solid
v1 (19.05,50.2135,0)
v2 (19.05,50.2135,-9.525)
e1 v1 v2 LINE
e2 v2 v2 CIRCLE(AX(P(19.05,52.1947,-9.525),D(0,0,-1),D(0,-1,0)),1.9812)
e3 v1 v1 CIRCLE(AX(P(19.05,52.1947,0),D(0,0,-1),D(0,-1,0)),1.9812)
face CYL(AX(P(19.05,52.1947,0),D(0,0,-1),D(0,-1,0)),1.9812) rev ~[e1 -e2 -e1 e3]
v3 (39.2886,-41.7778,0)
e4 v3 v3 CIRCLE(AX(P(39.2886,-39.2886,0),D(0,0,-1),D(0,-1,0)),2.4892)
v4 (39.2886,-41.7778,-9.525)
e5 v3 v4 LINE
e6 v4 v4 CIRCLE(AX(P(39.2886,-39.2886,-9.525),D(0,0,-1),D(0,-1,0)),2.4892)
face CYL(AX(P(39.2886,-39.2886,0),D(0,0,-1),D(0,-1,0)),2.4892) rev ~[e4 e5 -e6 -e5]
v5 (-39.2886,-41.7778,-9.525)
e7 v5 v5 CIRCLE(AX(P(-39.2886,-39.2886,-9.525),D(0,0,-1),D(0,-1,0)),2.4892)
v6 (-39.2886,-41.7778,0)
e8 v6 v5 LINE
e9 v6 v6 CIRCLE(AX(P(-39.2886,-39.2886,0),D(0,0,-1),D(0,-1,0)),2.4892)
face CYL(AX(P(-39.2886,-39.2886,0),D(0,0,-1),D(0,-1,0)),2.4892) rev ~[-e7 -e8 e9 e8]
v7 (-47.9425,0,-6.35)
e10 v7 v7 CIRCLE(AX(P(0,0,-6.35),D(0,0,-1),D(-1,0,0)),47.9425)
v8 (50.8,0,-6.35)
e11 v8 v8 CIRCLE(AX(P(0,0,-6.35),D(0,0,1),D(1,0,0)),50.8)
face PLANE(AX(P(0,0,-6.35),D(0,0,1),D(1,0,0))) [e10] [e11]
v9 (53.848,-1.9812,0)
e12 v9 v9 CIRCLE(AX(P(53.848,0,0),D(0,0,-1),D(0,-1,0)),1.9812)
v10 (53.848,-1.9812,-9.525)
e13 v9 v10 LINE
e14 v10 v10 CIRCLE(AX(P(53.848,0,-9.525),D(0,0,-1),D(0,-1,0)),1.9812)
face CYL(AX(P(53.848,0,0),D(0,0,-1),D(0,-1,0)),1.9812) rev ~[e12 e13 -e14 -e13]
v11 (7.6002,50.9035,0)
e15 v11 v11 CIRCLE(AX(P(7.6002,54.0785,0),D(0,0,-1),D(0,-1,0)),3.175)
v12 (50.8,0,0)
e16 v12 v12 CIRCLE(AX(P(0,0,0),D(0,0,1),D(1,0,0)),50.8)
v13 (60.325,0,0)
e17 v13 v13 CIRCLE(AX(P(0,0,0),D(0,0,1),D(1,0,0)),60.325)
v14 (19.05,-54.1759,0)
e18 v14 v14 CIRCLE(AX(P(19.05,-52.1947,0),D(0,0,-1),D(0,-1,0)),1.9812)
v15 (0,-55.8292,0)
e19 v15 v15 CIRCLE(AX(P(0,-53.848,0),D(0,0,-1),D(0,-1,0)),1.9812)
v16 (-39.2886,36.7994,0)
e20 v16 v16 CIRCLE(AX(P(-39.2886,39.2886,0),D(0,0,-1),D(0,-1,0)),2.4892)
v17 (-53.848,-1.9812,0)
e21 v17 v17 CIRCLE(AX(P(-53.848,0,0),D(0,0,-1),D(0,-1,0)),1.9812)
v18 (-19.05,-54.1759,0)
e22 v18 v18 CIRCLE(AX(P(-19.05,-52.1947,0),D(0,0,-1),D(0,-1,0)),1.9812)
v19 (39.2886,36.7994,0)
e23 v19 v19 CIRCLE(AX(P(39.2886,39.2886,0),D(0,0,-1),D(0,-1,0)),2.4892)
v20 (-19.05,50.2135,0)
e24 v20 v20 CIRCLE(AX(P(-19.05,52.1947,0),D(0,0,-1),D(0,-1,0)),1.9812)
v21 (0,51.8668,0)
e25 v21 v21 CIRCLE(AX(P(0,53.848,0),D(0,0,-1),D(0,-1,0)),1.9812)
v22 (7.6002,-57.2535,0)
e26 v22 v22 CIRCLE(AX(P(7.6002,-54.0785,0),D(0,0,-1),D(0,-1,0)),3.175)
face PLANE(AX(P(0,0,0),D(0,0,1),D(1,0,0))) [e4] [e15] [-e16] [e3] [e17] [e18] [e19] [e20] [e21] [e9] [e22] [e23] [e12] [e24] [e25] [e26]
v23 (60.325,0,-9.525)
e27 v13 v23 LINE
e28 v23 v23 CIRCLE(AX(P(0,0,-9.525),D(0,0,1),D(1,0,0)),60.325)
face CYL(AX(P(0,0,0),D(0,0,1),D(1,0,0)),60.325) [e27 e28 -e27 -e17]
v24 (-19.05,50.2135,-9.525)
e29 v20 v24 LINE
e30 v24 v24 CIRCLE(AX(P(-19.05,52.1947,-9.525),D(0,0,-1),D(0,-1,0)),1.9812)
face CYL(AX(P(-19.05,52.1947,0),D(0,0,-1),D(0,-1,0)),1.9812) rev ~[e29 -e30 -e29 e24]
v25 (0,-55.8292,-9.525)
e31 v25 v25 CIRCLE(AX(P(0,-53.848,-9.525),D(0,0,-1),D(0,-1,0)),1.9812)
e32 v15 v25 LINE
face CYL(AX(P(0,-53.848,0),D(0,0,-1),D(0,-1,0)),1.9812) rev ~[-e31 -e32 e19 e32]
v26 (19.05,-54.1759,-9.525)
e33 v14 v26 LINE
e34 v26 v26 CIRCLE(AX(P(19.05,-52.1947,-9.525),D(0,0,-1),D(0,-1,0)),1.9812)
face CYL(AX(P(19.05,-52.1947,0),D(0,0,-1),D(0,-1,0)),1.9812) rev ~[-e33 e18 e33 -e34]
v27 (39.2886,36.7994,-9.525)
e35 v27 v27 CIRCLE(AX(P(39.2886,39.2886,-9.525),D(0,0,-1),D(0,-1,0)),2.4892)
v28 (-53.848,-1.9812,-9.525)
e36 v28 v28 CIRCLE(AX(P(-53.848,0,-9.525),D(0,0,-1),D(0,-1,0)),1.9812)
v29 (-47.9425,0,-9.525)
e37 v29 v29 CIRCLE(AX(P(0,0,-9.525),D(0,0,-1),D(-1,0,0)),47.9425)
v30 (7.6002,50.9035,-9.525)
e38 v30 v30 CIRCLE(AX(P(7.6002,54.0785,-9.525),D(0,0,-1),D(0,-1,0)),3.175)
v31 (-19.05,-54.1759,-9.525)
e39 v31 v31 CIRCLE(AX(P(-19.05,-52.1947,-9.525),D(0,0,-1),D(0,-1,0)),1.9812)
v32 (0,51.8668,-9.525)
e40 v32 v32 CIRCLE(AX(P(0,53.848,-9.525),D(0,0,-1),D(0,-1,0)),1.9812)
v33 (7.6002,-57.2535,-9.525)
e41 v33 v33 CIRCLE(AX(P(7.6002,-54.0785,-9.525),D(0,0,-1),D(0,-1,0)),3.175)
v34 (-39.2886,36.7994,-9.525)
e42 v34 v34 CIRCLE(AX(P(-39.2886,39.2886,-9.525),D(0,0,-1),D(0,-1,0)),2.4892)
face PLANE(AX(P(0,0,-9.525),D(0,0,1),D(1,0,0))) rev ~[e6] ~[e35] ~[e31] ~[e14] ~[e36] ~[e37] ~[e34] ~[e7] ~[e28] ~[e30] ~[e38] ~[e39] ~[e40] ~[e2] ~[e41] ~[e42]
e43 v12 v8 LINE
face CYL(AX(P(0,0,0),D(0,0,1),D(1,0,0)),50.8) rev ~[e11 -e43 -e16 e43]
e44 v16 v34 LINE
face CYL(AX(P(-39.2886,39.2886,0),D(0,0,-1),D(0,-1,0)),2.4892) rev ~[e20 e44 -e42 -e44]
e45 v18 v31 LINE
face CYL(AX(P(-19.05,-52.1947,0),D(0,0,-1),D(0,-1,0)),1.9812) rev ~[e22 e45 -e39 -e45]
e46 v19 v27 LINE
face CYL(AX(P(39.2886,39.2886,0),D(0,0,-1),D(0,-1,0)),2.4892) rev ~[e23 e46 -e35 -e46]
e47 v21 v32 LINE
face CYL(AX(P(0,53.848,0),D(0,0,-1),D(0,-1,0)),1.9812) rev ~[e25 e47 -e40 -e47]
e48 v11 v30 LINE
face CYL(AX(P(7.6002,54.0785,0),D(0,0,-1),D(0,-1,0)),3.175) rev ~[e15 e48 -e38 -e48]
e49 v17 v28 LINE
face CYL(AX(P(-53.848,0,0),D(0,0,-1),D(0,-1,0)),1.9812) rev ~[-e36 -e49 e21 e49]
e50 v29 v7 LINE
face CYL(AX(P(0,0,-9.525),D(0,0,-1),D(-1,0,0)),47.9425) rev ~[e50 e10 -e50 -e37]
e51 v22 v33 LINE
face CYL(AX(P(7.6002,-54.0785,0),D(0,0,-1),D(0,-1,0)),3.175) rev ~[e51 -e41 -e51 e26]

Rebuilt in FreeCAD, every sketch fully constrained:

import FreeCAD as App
import Part
import Sketcher
from FreeCAD import Vector
Q = App.Units.Quantity

doc = App.newDocument("Part")
params = doc.addObject("Spreadsheet::Sheet", "Params")
for row, (alias, value) in enumerate([
    ("sketch1_diameter", "4.75 in"),
    ("sketch1_diameter2", "3.75 in"),
    ("pad1_length", "0.375 in"),
    ("sketch2_diameter", "4 in"),
    ("pocket1_length", "0.25 in"),
    ("sketch3_diameter", "0.156 in"),
    ("hole_diameter", "0.156 in"),
    ("sketch4_diameter", "3.775 in"),
    ("sketch4_diameter2", "3.75 in"),
    ("pocket2_length", "0.25 in"),
    ("sketch5_diameter", "0.156 in"),
    ("hole2_diameter", "0.156 in"),
    ("sketch6_diameter", "0.196 in"),
    ("hole3_diameter", "0.196 in"),
    ("sketch7_diameter", "0.25 in"),
    ("hole4_diameter", "0.25 in"),
], start=1):
    params.set(f"A{row}", alias)
    params.set(f"B{row}", "=" + value)
    params.setAlias(f"B{row}", alias)

body = doc.addObject("PartDesign::Body", "Body")

# Sketch on XY plane
sketch1 = body.newObject("Sketcher::SketchObject", "Sketch")
sketch1.AttachmentSupport = (doc.getObject("XY_Plane"), [""])
sketch1.MapMode = "FlatFace"
sketch1.addGeometry([
    Part.Circle(Vector(0, 0, 0), Vector(0, 0, 1), 60),
    Part.Circle(Vector(0, 0, 0), Vector(0, 0, 1), 48),
], False)
sketch1.addConstraint([
    Sketcher.Constraint("Coincident", 0, 3, -1, 1),
    Sketcher.Constraint("Coincident", 1, 3, -1, 1),
    Sketcher.Constraint("Diameter", 0, Q("4.75 in")),
    Sketcher.Constraint("Diameter", 1, Q("3.75 in")),
])
sketch1.setExpression("Constraints[2]", "Params.sketch1_diameter")
sketch1.setExpression("Constraints[3]", "Params.sketch1_diameter2")
pad1 = body.newObject("PartDesign::Pad", "Pad")
pad1.Profile = sketch1
pad1.setExpression("Length", "Params.pad1_length")
pad1.Reversed = True

# Sketch on XY plane
sketch2 = body.newObject("Sketcher::SketchObject", "Sketch001")
sketch2.AttachmentSupport = (doc.getObject("XY_Plane"), [""])
sketch2.MapMode = "FlatFace"
sketch2.addGeometry(Part.Circle(Vector(0, 0, 0), Vector(0, 0, 1), 51), False)
sketch2.addConstraint([
    Sketcher.Constraint("Coincident", 0, 3, -1, 1),
    Sketcher.Constraint("Diameter", 0, Q("4 in")),
])
sketch2.setExpression("Constraints[1]", "Params.sketch2_diameter")
pocket1 = body.newObject("PartDesign::Pocket", "Pocket")
pocket1.Profile = sketch2
pocket1.setExpression("Length", "Params.pocket1_length")

# Sketch on XY plane
sketch3 = body.newObject("Sketcher::SketchObject", "Sketch002")
sketch3.AttachmentSupport = (doc.getObject("XY_Plane"), [""])
sketch3.MapMode = "FlatFace"
sketch3.addGeometry([
    Part.Circle(Vector(0, 53.8, 0), Vector(0, 0, 1), 2),
    Part.Circle(Vector(-53.8, 0, 0), Vector(0, 0, 1), 2),
    Part.Circle(Vector(0, -53.8, 0), Vector(0, 0, 1), 2),
    Part.Circle(Vector(53.8, 0, 0), Vector(0, 0, 1), 2),
], False)
sketch3.addConstraint([
    Sketcher.Constraint("Equal", 0, 1),
    Sketcher.Constraint("Equal", 1, 2),
    Sketcher.Constraint("Equal", 2, 3),
    Sketcher.Constraint("Symmetric", 0, 3, 2, 3, -1, 1),
    Sketcher.Constraint("Symmetric", 1, 3, 3, 3, -1, 1),
    Sketcher.Constraint("PointOnObject", 0, 3, -2),
    Sketcher.Constraint("PointOnObject", 1, 3, -1),
    Sketcher.Constraint("Diameter", 0, Q("0.156 in")),
    Sketcher.Constraint("DistanceY", -1, 1, 0, 3, Q("2.12 in")),
    Sketcher.Constraint("DistanceX", 1, 3, -1, 1, Q("2.12 in")),
])
sketch3.setExpression("Constraints[7]", "Params.sketch3_diameter")
doc.recompute()
hole = body.newObject("PartDesign::Hole", "Hole")
hole.Profile = sketch3
hole.ThreadType = "None"
hole.setExpression("Diameter", "Params.hole_diameter")
hole.DepthType = "ThroughAll"

# Sketch on XY plane
sketch4 = body.newObject("Sketcher::SketchObject", "Sketch003")
sketch4.AttachmentSupport = (doc.getObject("XY_Plane"), [""])
sketch4.MapMode = "FlatFace"
sketch4.AttachmentOffset = App.Placement(Vector(0, 0, -0.375 * 25.4), App.Rotation())
sketch4.addGeometry([
    Part.Circle(Vector(0, 0, 0), Vector(0, 0, 1), 48),
    Part.Circle(Vector(0, 0, 0), Vector(0, 0, 1), 48),
], False)
sketch4.addConstraint([
    Sketcher.Constraint("Coincident", 0, 3, -1, 1),
    Sketcher.Constraint("Coincident", 1, 3, -1, 1),
    Sketcher.Constraint("Diameter", 0, Q("3.775 in")),
    Sketcher.Constraint("Diameter", 1, Q("3.75 in")),
])
sketch4.setExpression("Constraints[2]", "Params.sketch4_diameter")
sketch4.setExpression("Constraints[3]", "Params.sketch4_diameter2")
pocket2 = body.newObject("PartDesign::Pocket", "Pocket001")
pocket2.Profile = sketch4
pocket2.setExpression("Length", "Params.pocket2_length")
pocket2.Reversed = True

# Sketch on XY plane
sketch5 = body.newObject("Sketcher::SketchObject", "Sketch004")
sketch5.AttachmentSupport = (doc.getObject("XY_Plane"), [""])
sketch5.MapMode = "FlatFace"
sketch5.addGeometry([
    Part.Circle(Vector(-19.1, 52.2, 0), Vector(0, 0, 1), 2),
    Part.Circle(Vector(19.1, 52.2, 0), Vector(0, 0, 1), 2),
    Part.Circle(Vector(-19.1, -52.2, 0), Vector(0, 0, 1), 2),
    Part.Circle(Vector(19.1, -52.2, 0), Vector(0, 0, 1), 2),
], False)
sketch5.addConstraint([
    Sketcher.Constraint("Equal", 0, 1),
    Sketcher.Constraint("Equal", 1, 2),
    Sketcher.Constraint("Equal", 2, 3),
    Sketcher.Constraint("Symmetric", 1, 3, 2, 3, -1, 1),
    Sketcher.Constraint("Symmetric", 0, 3, 3, 3, -1, 1),
    Sketcher.Constraint("Symmetric", 0, 3, 1, 3, -2),
    Sketcher.Constraint("Diameter", 0, Q("0.156 in")),
    Sketcher.Constraint("DistanceX", 0, 3, 1, 3, Q("1.5 in")),
    Sketcher.Constraint("DistanceY", -1, 1, 0, 3, Q("2.0549 in")),
])
sketch5.setExpression("Constraints[6]", "Params.sketch5_diameter")
doc.recompute()
hole2 = body.newObject("PartDesign::Hole", "Hole001")
hole2.Profile = sketch5
hole2.ThreadType = "None"
hole2.setExpression("Diameter", "Params.hole2_diameter")
hole2.DepthType = "ThroughAll"

# Sketch on XY plane
sketch6 = body.newObject("Sketcher::SketchObject", "Sketch005")
sketch6.AttachmentSupport = (doc.getObject("XY_Plane"), [""])
sketch6.MapMode = "FlatFace"
sketch6.addGeometry([
    Part.Circle(Vector(-39.3, 39.3, 0), Vector(0, 0, 1), 2.5),
    Part.Circle(Vector(-39.3, -39.3, 0), Vector(0, 0, 1), 2.5),
    Part.Circle(Vector(39.3, -39.3, 0), Vector(0, 0, 1), 2.5),
    Part.Circle(Vector(39.3, 39.3, 0), Vector(0, 0, 1), 2.5),
], False)
sketch6.addConstraint([
    Sketcher.Constraint("Equal", 0, 1),
    Sketcher.Constraint("Equal", 1, 2),
    Sketcher.Constraint("Equal", 2, 3),
    Sketcher.Constraint("Symmetric", 0, 3, 2, 3, -1, 1),
    Sketcher.Constraint("Symmetric", 1, 3, 3, 3, -1, 1),
    Sketcher.Constraint("Symmetric", 1, 3, 2, 3, -2),
    Sketcher.Constraint("Diameter", 0, Q("0.196 in")),
    Sketcher.Constraint("DistanceX", 0, 3, -1, 1, Q("1.5468 in")),
    Sketcher.Constraint("DistanceY", -1, 1, 0, 3, Q("1.5468 in")),
])
sketch6.setExpression("Constraints[6]", "Params.sketch6_diameter")
doc.recompute()
hole3 = body.newObject("PartDesign::Hole", "Hole002")
hole3.Profile = sketch6
hole3.ThreadType = "None"
hole3.setExpression("Diameter", "Params.hole3_diameter")
hole3.DepthType = "ThroughAll"

# Sketch on XY plane
sketch7 = body.newObject("Sketcher::SketchObject", "Sketch006")
sketch7.AttachmentSupport = (doc.getObject("XY_Plane"), [""])
sketch7.MapMode = "FlatFace"
sketch7.addGeometry([
    Part.Circle(Vector(7.6, 54.1, 0), Vector(0, 0, 1), 3.2),
    Part.Circle(Vector(7.6, -54.1, 0), Vector(0, 0, 1), 3.2),
], False)
sketch7.addConstraint([
    Sketcher.Constraint("Equal", 0, 1),
    Sketcher.Constraint("Symmetric", 0, 3, 1, 3, -1),
    Sketcher.Constraint("Diameter", 0, Q("0.25 in")),
    Sketcher.Constraint("DistanceX", -1, 1, 0, 3, 7.6002),
    Sketcher.Constraint("DistanceY", -1, 1, 0, 3, 54.0785),
])
sketch7.setExpression("Constraints[2]", "Params.sketch7_diameter")
doc.recompute()
hole4 = body.newObject("PartDesign::Hole", "Hole003")
hole4.Profile = sketch7
hole4.ThreadType = "None"
hole4.setExpression("Diameter", "Params.hole4_diameter")
hole4.DepthType = "ThroughAll"

doc.recompute()
